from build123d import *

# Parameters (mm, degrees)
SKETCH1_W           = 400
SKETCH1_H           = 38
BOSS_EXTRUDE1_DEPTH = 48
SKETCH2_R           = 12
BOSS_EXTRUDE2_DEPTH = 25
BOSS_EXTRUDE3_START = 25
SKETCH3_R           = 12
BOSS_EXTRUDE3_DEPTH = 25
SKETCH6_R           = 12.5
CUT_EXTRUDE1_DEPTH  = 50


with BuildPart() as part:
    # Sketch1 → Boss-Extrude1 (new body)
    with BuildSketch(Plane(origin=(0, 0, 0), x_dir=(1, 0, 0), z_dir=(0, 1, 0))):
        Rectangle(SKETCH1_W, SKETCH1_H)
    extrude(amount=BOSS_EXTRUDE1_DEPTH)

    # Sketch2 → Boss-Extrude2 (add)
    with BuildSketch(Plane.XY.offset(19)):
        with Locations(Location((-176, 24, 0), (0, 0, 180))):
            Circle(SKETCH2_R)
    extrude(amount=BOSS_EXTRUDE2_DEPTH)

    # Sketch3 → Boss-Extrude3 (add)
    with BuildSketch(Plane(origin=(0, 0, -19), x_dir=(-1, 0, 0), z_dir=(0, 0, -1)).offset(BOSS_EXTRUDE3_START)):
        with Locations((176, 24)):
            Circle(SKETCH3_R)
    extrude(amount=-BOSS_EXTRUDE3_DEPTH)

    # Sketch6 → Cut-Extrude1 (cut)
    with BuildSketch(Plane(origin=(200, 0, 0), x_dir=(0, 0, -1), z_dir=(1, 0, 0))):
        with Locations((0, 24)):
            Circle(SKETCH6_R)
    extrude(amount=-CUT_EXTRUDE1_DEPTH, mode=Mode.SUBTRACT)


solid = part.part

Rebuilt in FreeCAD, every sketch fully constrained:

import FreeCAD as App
import Part
import Sketcher

doc = App.newDocument("Part")
body = doc.addObject("PartDesign::Body", "Body")

sketch1 = body.newObject("Sketcher::SketchObject", "Sketch")
sketch1.AttachmentSupport = (doc.getObject("XZ_Plane"), [""])
sketch1.MapMode = "FlatFace"
sketch1.addGeometry(Part.LineSegment(App.Vector(-200, -19, 0), App.Vector(-200, 19, 0)), False)
sketch1.addGeometry(Part.LineSegment(App.Vector(-200, 19, 0), App.Vector(200, 19, 0)), False)
sketch1.addGeometry(Part.LineSegment(App.Vector(200, 19, 0), App.Vector(200, -19, 0)), False)
sketch1.addGeometry(Part.LineSegment(App.Vector(200, -19, 0), App.Vector(-200, -19, 0)), False)
sketch1.addConstraint(Sketcher.Constraint("Coincident", 0, 2, 1, 1))
sketch1.addConstraint(Sketcher.Constraint("Coincident", 1, 2, 2, 1))
sketch1.addConstraint(Sketcher.Constraint("Coincident", 2, 2, 3, 1))
sketch1.addConstraint(Sketcher.Constraint("Coincident", 3, 2, 0, 1))
sketch1.addConstraint(Sketcher.Constraint("Vertical", 0))
sketch1.addConstraint(Sketcher.Constraint("Horizontal", 1))
sketch1.addConstraint(Sketcher.Constraint("Vertical", 2))
sketch1.addConstraint(Sketcher.Constraint("Horizontal", 3))
sketch1.addConstraint(Sketcher.Constraint("Symmetric", 0, 2, 2, 2, -1, 1))
sketch1.addConstraint(Sketcher.Constraint("DistanceX", 1, 1, 1, 2, 400.0))
sketch1.addConstraint(Sketcher.Constraint("DistanceY", 0, 1, 0, 2, 38.0))
pad1 = body.newObject("PartDesign::Pad", "Pad")
pad1.Profile = sketch1
pad1.Length = 48
pad1.Reversed = True

sketch2 = body.newObject("Sketcher::SketchObject", "Sketch001")
sketch2.AttachmentSupport = (doc.getObject("XY_Plane"), [""])
sketch2.MapMode = "FlatFace"
sketch2.AttachmentOffset = App.Placement(App.Vector(0, 0, 19), App.Rotation())
sketch2.addGeometry(Part.Circle(App.Vector(-176, 24, 0), App.Vector(0, 0, 1), 12), False)
sketch2.addConstraint(Sketcher.Constraint("Diameter", 0, 24.0))
sketch2.addConstraint(Sketcher.Constraint("DistanceX", 0, 3, -1, 1, 176.0))
sketch2.addConstraint(Sketcher.Constraint("DistanceY", -1, 1, 0, 3, 24.0))
pad2 = body.newObject("PartDesign::Pad", "Pad001")
pad2.Profile = sketch2
pad2.Length = 25

sketch3 = body.newObject("Sketcher::SketchObject", "Sketch002")
sketch3.AttachmentSupport = (doc.getObject("XY_Plane"), [""])
sketch3.MapMode = "FlatFace"
sketch3.AttachmentOffset = App.Placement(App.Vector(0, 0, -44), App.Rotation())
sketch3.addGeometry(Part.Circle(App.Vector(-176, 24, 0), App.Vector(0, 0, 1), 12), False)
sketch3.addConstraint(Sketcher.Constraint("Diameter", 0, 24.0))
sketch3.addConstraint(Sketcher.Constraint("DistanceX", 0, 3, -1, 1, 176.0))
sketch3.addConstraint(Sketcher.Constraint("DistanceY", -1, 1, 0, 3, 24.0))
pad3 = body.newObject("PartDesign::Pad", "Pad002")
pad3.Profile = sketch3
pad3.Length = 25

sketch4 = body.newObject("Sketcher::SketchObject", "Sketch003")
sketch4.AttachmentSupport = (doc.getObject("YZ_Plane"), [""])
sketch4.MapMode = "FlatFace"
sketch4.AttachmentOffset = App.Placement(App.Vector(0, 0, 200), App.Rotation())
sketch4.addGeometry(Part.Circle(App.Vector(24, 0, 0), App.Vector(0, 0, 1), 12.5), False)
sketch4.addConstraint(Sketcher.Constraint("PointOnObject", 0, 3, -1))
sketch4.addConstraint(Sketcher.Constraint("Diameter", 0, 25.0))
sketch4.addConstraint(Sketcher.Constraint("DistanceX", -1, 1, 0, 3, 24.0))
pocket1 = body.newObject("PartDesign::Pocket", "Pocket")
pocket1.Profile = sketch4
pocket1.Length = 50

doc.recompute()
